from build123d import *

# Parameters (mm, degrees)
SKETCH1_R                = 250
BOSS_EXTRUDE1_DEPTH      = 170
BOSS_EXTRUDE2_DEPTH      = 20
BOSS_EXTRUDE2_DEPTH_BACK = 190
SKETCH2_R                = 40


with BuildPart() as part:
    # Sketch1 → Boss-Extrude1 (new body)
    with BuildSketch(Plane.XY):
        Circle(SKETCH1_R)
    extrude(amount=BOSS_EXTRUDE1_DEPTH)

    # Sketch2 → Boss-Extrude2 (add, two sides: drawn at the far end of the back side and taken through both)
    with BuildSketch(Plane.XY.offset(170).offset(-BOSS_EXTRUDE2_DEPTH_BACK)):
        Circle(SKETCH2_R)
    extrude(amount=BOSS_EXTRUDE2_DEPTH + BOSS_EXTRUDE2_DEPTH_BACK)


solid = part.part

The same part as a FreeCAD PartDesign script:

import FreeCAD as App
import Part
import Sketcher
Q = App.Units.Quantity

doc = App.newDocument("Part")
params = doc.addObject("Spreadsheet::Sheet", "Params")
for row, (alias, value) in enumerate([
    ("sketch1_diameter", "500 mm"),
    ("pad1_length", "170 mm"),
    ("sketch2_diameter", "80 mm"),
    ("pad2_length", "20 mm"),
    ("pad2_length2", "190 mm"),
], start=1):
    params.set(f"A{row}", alias)
    params.set(f"B{row}", "=" + value)
    params.setAlias(f"B{row}", alias)

body = doc.addObject("PartDesign::Body", "Body")

sketch1 = body.newObject("Sketcher::SketchObject", "Sketch")
sketch1.AttachmentSupport = (doc.getObject("XY_Plane"), [""])
sketch1.MapMode = "FlatFace"
sketch1.addGeometry(Part.Circle(App.Vector(0, 0, 0), App.Vector(0, 0, 1), 250), False)
sketch1.addConstraint(Sketcher.Constraint("Coincident", 0, 3, -1, 1))
sketch1.addConstraint(Sketcher.Constraint("Diameter", 0, Q("500 mm")))
sketch1.setExpression("Constraints[1]", "Params.sketch1_diameter")
pad1 = body.newObject("PartDesign::Pad", "Pad")
pad1.Profile = sketch1
pad1.setExpression("Length", "Params.pad1_length")

sketch2 = body.newObject("Sketcher::SketchObject", "Sketch001")
sketch2.AttachmentSupport = (doc.getObject("XY_Plane"), [""])
sketch2.MapMode = "FlatFace"
sketch2.AttachmentOffset = App.Placement(App.Vector(0, 0, 170), App.Rotation())
sketch2.addGeometry(Part.Circle(App.Vector(0, 0, 0), App.Vector(0, 0, 1), 40), False)
sketch2.addConstraint(Sketcher.Constraint("Coincident", 0, 3, -1, 1))
sketch2.addConstraint(Sketcher.Constraint("Diameter", 0, Q("80 mm")))
sketch2.setExpression("Constraints[1]", "Params.sketch2_diameter")
pad2 = body.newObject("PartDesign::Pad", "Pad001")
pad2.Profile = sketch2
pad2.Type = "TwoLengths"
pad2.setExpression("Length", "Params.pad2_length")
pad2.setExpression("Length2", "Params.pad2_length2")

doc.recompute()
